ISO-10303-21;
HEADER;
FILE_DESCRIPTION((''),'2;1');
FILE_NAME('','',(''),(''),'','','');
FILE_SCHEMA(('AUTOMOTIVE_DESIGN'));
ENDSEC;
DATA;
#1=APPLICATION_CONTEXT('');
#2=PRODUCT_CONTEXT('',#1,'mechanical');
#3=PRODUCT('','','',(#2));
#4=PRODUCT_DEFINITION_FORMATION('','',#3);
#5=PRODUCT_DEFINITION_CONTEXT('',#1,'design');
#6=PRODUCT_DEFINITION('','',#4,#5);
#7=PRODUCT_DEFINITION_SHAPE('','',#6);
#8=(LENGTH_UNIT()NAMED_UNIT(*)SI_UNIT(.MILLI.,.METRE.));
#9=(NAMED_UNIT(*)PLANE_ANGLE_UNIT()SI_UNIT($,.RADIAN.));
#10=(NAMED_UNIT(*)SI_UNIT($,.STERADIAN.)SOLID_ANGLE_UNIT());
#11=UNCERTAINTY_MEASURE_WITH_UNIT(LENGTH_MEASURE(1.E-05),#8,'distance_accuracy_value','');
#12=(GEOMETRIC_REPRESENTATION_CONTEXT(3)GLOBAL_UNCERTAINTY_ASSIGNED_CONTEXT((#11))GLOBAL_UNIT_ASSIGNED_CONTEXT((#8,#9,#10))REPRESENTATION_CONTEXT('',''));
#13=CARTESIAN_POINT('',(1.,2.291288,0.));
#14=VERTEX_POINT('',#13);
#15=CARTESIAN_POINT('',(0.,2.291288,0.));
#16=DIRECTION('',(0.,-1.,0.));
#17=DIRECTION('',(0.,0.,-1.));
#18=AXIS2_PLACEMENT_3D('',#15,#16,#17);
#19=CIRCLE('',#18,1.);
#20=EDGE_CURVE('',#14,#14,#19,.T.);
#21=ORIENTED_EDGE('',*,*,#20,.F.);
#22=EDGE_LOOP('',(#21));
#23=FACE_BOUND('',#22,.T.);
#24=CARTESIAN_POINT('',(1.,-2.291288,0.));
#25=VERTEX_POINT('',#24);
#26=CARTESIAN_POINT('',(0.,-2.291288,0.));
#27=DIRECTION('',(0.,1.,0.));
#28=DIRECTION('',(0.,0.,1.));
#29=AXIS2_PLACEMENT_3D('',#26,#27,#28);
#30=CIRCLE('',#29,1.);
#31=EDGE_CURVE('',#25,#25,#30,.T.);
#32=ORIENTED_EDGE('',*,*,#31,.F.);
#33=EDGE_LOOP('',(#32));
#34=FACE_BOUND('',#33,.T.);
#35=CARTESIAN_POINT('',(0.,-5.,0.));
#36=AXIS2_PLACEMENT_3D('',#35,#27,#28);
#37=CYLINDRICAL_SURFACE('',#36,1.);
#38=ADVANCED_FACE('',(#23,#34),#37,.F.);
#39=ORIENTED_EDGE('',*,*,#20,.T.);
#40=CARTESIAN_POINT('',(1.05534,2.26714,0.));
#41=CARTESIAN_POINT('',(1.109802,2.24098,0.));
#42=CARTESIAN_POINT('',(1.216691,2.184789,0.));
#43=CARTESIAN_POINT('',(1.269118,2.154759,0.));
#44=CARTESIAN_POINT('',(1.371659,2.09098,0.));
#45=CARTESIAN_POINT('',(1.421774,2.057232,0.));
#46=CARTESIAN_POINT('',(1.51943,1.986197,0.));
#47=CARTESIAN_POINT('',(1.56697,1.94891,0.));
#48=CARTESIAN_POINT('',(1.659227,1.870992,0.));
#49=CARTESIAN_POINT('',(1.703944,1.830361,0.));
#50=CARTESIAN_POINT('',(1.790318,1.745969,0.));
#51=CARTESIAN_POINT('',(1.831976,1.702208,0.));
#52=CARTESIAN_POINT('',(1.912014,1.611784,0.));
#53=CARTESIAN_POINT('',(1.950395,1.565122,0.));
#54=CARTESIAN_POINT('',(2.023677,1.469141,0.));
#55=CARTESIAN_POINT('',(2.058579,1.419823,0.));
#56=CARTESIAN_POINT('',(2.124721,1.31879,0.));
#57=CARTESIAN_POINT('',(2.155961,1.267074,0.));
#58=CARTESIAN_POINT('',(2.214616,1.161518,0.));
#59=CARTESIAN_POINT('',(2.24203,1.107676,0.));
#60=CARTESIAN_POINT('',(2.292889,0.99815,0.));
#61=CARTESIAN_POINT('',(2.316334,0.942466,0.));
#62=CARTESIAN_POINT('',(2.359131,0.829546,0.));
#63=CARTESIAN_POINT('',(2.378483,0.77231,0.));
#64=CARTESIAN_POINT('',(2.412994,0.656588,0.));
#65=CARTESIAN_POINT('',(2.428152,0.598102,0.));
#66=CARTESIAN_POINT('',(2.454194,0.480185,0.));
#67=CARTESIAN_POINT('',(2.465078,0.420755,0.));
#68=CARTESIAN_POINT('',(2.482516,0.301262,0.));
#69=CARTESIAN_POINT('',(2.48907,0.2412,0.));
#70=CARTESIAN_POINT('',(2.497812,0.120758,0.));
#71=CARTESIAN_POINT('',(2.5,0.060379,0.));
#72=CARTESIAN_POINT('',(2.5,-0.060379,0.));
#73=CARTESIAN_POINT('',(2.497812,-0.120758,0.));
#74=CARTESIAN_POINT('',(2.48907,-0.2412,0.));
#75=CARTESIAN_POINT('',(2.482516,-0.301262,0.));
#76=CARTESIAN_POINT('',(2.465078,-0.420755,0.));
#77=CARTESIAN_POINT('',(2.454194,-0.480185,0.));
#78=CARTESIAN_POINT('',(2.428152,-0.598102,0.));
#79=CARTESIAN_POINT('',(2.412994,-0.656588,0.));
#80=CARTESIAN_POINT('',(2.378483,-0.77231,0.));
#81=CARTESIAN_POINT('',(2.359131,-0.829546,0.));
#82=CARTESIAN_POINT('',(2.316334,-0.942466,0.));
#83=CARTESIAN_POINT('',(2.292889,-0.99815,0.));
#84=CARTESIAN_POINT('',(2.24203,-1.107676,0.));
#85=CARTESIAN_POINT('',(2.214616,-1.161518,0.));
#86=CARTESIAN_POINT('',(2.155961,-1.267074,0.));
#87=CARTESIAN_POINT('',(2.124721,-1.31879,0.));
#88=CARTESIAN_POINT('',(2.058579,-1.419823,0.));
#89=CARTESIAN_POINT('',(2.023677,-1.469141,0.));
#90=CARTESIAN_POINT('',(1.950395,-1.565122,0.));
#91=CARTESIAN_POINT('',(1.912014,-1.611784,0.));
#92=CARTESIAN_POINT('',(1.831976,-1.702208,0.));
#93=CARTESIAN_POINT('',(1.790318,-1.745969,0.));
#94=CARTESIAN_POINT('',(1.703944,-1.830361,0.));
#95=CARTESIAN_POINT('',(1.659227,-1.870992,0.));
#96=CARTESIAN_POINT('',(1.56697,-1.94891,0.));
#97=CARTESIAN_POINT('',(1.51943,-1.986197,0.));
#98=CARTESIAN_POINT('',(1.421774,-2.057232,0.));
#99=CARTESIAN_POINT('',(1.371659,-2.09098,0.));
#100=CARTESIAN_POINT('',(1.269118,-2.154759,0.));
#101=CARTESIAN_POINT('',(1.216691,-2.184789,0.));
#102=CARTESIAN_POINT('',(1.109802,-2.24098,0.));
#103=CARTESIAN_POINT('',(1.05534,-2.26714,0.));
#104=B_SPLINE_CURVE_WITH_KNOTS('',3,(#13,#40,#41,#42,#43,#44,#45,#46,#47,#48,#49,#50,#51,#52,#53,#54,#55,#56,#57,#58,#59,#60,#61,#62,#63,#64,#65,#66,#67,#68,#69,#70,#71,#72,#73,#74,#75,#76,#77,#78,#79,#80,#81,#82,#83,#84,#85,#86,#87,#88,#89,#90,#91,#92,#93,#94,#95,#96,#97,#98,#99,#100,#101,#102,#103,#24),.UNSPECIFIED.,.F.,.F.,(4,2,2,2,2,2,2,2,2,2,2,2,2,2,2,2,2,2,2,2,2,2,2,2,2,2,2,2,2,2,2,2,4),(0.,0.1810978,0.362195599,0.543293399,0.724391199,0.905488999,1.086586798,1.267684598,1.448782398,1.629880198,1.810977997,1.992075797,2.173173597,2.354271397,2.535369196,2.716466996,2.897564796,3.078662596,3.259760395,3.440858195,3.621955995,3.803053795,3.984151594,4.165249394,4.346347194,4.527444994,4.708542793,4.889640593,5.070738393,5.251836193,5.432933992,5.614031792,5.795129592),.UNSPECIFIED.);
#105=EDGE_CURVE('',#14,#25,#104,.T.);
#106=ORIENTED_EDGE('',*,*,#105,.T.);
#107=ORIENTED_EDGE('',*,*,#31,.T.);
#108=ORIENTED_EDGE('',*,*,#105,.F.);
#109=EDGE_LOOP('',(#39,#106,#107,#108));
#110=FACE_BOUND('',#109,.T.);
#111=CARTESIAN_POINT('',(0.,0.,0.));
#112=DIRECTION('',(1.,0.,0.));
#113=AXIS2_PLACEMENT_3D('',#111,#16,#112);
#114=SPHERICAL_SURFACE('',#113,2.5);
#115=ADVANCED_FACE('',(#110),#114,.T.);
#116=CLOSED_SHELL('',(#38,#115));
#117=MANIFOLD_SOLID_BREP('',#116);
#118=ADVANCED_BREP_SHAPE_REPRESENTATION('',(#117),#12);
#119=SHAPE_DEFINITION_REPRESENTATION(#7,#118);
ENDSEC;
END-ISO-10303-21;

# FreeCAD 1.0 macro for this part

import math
import FreeCAD as App
import Part
import Sketcher

doc = App.newDocument("Part")
body = doc.addObject("PartDesign::Body", "Body")

# Sketch on XY plane
sketch1 = doc.addObject("Sketcher::SketchObject", "Sketch")
body.addObject(sketch1)
sketch1.AttachmentSupport = (doc.XY_Plane, [""])
sketch1.MapMode = "FlatFace"
sketch1.addGeometry([
    Part.LineSegment(App.Vector(0, -2.5, 0), App.Vector(0, 2.5, 0)),
    Part.ArcOfCircle(Part.Circle(App.Vector(0, 0, 0), App.Vector(0, 0, 1), 2.5), math.radians(90), math.radians(270)),
], False)
sketch1.addConstraint([
    Sketcher.Constraint("Coincident", 0, 1, 1, 2),
    Sketcher.Constraint("Coincident", 1, 1, 0, 2),
    Sketcher.Constraint("Vertical", 0),
    Sketcher.Constraint("Coincident", 1, 3, -1, 1),
    Sketcher.Constraint("PointOnObject", 0, 1, -2),
    Sketcher.Constraint("Radius", 1, 2.5),
])
revolution = doc.addObject("PartDesign::Revolution", "Revolution")
body.addObject(revolution)
revolution.Profile = sketch1
revolution.ReferenceAxis = (sketch1, ["V_Axis"])
revolution.Angle = 360

# Sketch on XZ plane
sketch2 = doc.addObject("Sketcher::SketchObject", "Sketch001")
body.addObject(sketch2)
sketch2.AttachmentSupport = (doc.XZ_Plane, [""])
sketch2.MapMode = "FlatFace"
sketch2.addGeometry(Part.Circle(App.Vector(0, 0, 0), App.Vector(0, 0, 1), 1), False)
sketch2.addConstraint([
    Sketcher.Constraint("Coincident", 0, 3, -1, 1),
    Sketcher.Constraint("Diameter", 0, 2.0),
])
pocket1 = doc.addObject("PartDesign::Pocket", "Pocket")
body.addObject(pocket1)
pocket1.Profile = sketch2
pocket1.Length = 10
pocket1.Midplane = True

doc.recompute()
